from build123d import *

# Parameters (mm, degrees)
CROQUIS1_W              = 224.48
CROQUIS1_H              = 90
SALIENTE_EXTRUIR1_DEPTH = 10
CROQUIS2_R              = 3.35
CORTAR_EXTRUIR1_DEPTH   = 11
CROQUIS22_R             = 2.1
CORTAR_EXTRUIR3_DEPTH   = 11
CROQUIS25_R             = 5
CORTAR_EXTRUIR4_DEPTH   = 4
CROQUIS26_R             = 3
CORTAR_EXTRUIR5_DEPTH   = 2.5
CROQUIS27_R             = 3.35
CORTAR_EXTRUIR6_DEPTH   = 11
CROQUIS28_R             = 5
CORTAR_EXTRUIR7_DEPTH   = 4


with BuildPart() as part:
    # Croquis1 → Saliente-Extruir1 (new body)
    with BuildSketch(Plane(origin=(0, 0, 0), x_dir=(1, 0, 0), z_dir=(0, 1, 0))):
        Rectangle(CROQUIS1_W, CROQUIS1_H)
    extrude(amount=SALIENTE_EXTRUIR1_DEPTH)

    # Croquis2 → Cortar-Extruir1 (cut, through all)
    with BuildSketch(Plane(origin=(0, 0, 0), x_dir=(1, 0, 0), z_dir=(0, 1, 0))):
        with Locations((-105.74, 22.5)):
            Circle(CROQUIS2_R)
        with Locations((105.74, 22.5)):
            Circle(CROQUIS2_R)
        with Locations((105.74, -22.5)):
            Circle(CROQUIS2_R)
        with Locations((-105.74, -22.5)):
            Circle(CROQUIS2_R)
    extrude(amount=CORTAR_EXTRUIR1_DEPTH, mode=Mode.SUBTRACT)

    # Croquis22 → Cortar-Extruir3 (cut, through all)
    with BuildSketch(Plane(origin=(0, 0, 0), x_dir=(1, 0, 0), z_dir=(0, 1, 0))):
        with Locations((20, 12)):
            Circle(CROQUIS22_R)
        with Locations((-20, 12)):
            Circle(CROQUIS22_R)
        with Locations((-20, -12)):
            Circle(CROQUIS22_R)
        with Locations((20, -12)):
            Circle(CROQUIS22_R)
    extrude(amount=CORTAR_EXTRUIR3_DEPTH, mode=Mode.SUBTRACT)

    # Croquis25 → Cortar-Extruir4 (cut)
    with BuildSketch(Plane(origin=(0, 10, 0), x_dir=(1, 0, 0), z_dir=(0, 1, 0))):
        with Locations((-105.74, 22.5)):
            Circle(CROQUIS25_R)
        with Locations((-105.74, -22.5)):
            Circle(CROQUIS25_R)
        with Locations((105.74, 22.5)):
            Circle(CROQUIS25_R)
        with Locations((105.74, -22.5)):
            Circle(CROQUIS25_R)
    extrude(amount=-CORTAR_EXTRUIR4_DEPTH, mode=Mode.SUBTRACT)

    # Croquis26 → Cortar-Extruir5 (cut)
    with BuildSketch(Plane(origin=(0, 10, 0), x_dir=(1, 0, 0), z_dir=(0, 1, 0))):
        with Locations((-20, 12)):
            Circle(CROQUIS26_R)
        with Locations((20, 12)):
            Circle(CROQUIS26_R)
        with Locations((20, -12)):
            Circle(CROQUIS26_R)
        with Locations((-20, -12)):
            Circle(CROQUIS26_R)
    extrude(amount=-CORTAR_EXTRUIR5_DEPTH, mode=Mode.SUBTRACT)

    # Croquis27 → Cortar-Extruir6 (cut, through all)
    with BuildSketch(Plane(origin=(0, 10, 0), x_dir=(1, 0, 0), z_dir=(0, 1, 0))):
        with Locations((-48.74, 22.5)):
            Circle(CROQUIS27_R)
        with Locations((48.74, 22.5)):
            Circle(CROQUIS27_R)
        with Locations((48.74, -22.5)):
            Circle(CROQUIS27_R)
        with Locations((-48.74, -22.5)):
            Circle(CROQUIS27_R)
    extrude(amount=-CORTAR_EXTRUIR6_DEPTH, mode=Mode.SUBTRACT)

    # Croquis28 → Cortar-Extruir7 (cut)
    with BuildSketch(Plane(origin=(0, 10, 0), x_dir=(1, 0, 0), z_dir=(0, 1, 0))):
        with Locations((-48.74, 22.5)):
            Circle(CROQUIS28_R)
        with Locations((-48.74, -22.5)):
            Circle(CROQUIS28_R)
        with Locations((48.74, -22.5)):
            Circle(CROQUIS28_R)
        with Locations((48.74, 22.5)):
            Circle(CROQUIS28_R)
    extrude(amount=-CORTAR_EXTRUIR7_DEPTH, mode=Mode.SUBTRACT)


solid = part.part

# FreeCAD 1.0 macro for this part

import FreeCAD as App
import Part
import Sketcher

V = App.Vector

doc = App.newDocument("Part")
params = doc.addObject("Spreadsheet::Sheet", "Params")
for row, (alias, value) in enumerate([
    ("sketch1_height", "90 mm"),
    ("sketch1_width", "224.48 mm"),
    ("pad1_length", "10 mm"),
    ("sketch2_diameter", "6.7 mm"),
    ("sketch3_diameter", "4.2 mm"),
    ("sketch4_diameter", "10 mm"),
    ("pocket3_length", "4 mm"),
    ("sketch5_diameter", "6 mm"),
    ("pocket4_length", "2.5 mm"),
    ("sketch6_diameter", "6.7 mm"),
    ("sketch7_diameter", "10 mm"),
    ("pocket6_length", "4 mm"),
], start=1):
    params.set(f"A{row}", alias)
    params.set(f"B{row}", "=" + value)
    params.setAlias(f"B{row}", alias)

body = doc.addObject("PartDesign::Body", "Body")

sketch1 = body.newObject("Sketcher::SketchObject", "Sketch")
sketch1.AttachmentSupport = (doc.getObject("XZ_Plane"), [""])
sketch1.MapMode = "FlatFace"
sketch1.addGeometry(Part.LineSegment(V(-112, -45, 0), V(-112, 45, 0)), False)
sketch1.addGeometry(Part.LineSegment(V(-112, 45, 0), V(112, 45, 0)), False)
sketch1.addGeometry(Part.LineSegment(V(112, 45, 0), V(112, -45, 0)), False)
sketch1.addGeometry(Part.LineSegment(V(112, -45, 0), V(-112, -45, 0)), False)
sketch1.addConstraint(Sketcher.Constraint("Coincident", 0, 2, 1, 1))
sketch1.addConstraint(Sketcher.Constraint("Coincident", 1, 2, 2, 1))
sketch1.addConstraint(Sketcher.Constraint("Coincident", 2, 2, 3, 1))
sketch1.addConstraint(Sketcher.Constraint("Coincident", 3, 2, 0, 1))
sketch1.addConstraint(Sketcher.Constraint("Vertical", 0))
sketch1.addConstraint(Sketcher.Constraint("Horizontal", 1))
sketch1.addConstraint(Sketcher.Constraint("Vertical", 2))
sketch1.addConstraint(Sketcher.Constraint("Horizontal", 3))
sketch1.addConstraint(Sketcher.Constraint("Symmetric", 0, 2, 2, 2, -1, 1))
sketch1.addConstraint(Sketcher.Constraint("DistanceY", 0, 1, 0, 2, 90.0))
sketch1.addConstraint(Sketcher.Constraint("DistanceX", 1, 1, 1, 2, 224.48))
sketch1.setExpression("Constraints[9]", "Params.sketch1_height")
sketch1.setExpression("Constraints[10]", "Params.sketch1_width")
pad1 = body.newObject("PartDesign::Pad", "Pad")
pad1.Profile = sketch1
pad1.setExpression("Length", "Params.pad1_length")
pad1.Reversed = True

sketch2 = body.newObject("Sketcher::SketchObject", "Sketch001")
sketch2.AttachmentSupport = (doc.getObject("XZ_Plane"), [""])
sketch2.MapMode = "FlatFace"
sketch2.addGeometry(Part.Circle(V(-105.7, -22.5, 0), V(0, 0, 1), 3.4), False)
sketch2.addGeometry(Part.Circle(V(105.7, -22.5, 0), V(0, 0, 1), 3.4), False)
sketch2.addGeometry(Part.Circle(V(105.7, 22.5, 0), V(0, 0, 1), 3.4), False)
sketch2.addGeometry(Part.Circle(V(-105.7, 22.5, 0), V(0, 0, 1), 3.4), False)
sketch2.addConstraint(Sketcher.Constraint("Equal", 0, 1))
sketch2.addConstraint(Sketcher.Constraint("Equal", 1, 2))
sketch2.addConstraint(Sketcher.Constraint("Equal", 2, 3))
sketch2.addConstraint(Sketcher.Constraint("Symmetric", 0, 3, 2, 3, -1, 1))
sketch2.addConstraint(Sketcher.Constraint("Symmetric", 1, 3, 3, 3, -1, 1))
sketch2.addConstraint(Sketcher.Constraint("Symmetric", 0, 3, 1, 3, -2))
sketch2.addConstraint(Sketcher.Constraint("Diameter", 0, 6.7))
sketch2.addConstraint(Sketcher.Constraint("DistanceY", 1, 3, 2, 3, 45.0))
sketch2.addConstraint(Sketcher.Constraint("DistanceX", 0, 3, -1, 1, 105.74))
sketch2.setExpression("Constraints[6]", "Params.sketch2_diameter")
pocket1 = body.newObject("PartDesign::Pocket", "Pocket")
pocket1.Profile = sketch2
pocket1.Type = "ThroughAll"

sketch3 = body.newObject("Sketcher::SketchObject", "Sketch002")
sketch3.AttachmentSupport = (doc.getObject("XZ_Plane"), [""])
sketch3.MapMode = "FlatFace"
sketch3.addGeometry(Part.Circle(V(20, -12, 0), V(0, 0, 1), 2.1), False)
sketch3.addGeometry(Part.Circle(V(-20, -12, 0), V(0, 0, 1), 2.1), False)
sketch3.addGeometry(Part.Circle(V(-20, 12, 0), V(0, 0, 1), 2.1), False)
sketch3.addGeometry(Part.Circle(V(20, 12, 0), V(0, 0, 1), 2.1), False)
sketch3.addConstraint(Sketcher.Constraint("Equal", 0, 1))
sketch3.addConstraint(Sketcher.Constraint("Equal", 1, 2))
sketch3.addConstraint(Sketcher.Constraint("Equal", 2, 3))
sketch3.addConstraint(Sketcher.Constraint("Symmetric", 0, 3, 2, 3, -1, 1))
sketch3.addConstraint(Sketcher.Constraint("Symmetric", 1, 3, 3, 3, -1, 1))
sketch3.addConstraint(Sketcher.Constraint("Symmetric", 0, 3, 1, 3, -2))
sketch3.addConstraint(Sketcher.Constraint("Diameter", 0, 4.2))
sketch3.addConstraint(Sketcher.Constraint("DistanceX", -1, 1, 0, 3, 20.0))
sketch3.addConstraint(Sketcher.Constraint("DistanceY", 0, 3, -1, 1, 12.0))
sketch3.setExpression("Constraints[6]", "Params.sketch3_diameter")
pocket2 = body.newObject("PartDesign::Pocket", "Pocket001")
pocket2.Profile = sketch3
pocket2.Type = "ThroughAll"

sketch4 = body.newObject("Sketcher::SketchObject", "Sketch003")
sketch4.AttachmentSupport = (doc.getObject("XZ_Plane"), [""])
sketch4.MapMode = "FlatFace"
sketch4.AttachmentOffset = App.Placement(V(0, 0, -10), App.Rotation())
sketch4.addGeometry(Part.Circle(V(-106, -22, 0), V(0, 0, 1), 5), False)
sketch4.addGeometry(Part.Circle(V(-106, 22, 0), V(0, 0, 1), 5), False)
sketch4.addGeometry(Part.Circle(V(106, -22, 0), V(0, 0, 1), 5), False)
sketch4.addGeometry(Part.Circle(V(106, 22, 0), V(0, 0, 1), 5), False)
sketch4.addConstraint(Sketcher.Constraint("Equal", 0, 1))
sketch4.addConstraint(Sketcher.Constraint("Equal", 1, 2))
sketch4.addConstraint(Sketcher.Constraint("Equal", 2, 3))
sketch4.addConstraint(Sketcher.Constraint("Symmetric", 1, 3, 2, 3, -1, 1))
sketch4.addConstraint(Sketcher.Constraint("Symmetric", 0, 3, 3, 3, -1, 1))
sketch4.addConstraint(Sketcher.Constraint("Symmetric", 0, 3, 2, 3, -2))
sketch4.addConstraint(Sketcher.Constraint("Diameter", 0, 10.0))
sketch4.addConstraint(Sketcher.Constraint("DistanceY", 0, 3, 1, 3, 45.0))
sketch4.addConstraint(Sketcher.Constraint("DistanceX", 0, 3, -1, 1, 105.74))
sketch4.setExpression("Constraints[6]", "Params.sketch4_diameter")
pocket3 = body.newObject("PartDesign::Pocket", "Pocket002")
pocket3.Profile = sketch4
pocket3.setExpression("Length", "Params.pocket3_length")
pocket3.Reversed = True

sketch5 = body.newObject("Sketcher::SketchObject", "Sketch004")
sketch5.AttachmentSupport = (doc.getObject("XZ_Plane"), [""])
sketch5.MapMode = "FlatFace"
sketch5.AttachmentOffset = App.Placement(V(0, 0, -10), App.Rotation())
sketch5.addGeometry(Part.Circle(V(-20, -12, 0), V(0, 0, 1), 3), False)
sketch5.addGeometry(Part.Circle(V(20, -12, 0), V(0, 0, 1), 3), False)
sketch5.addGeometry(Part.Circle(V(20, 12, 0), V(0, 0, 1), 3), False)
sketch5.addGeometry(Part.Circle(V(-20, 12, 0), V(0, 0, 1), 3), False)
sketch5.addConstraint(Sketcher.Constraint("Equal", 0, 1))
sketch5.addConstraint(Sketcher.Constraint("Equal", 1, 2))
sketch5.addConstraint(Sketcher.Constraint("Equal", 2, 3))
sketch5.addConstraint(Sketcher.Constraint("Symmetric", 0, 3, 2, 3, -1, 1))
sketch5.addConstraint(Sketcher.Constraint("Symmetric", 1, 3, 3, 3, -1, 1))
sketch5.addConstraint(Sketcher.Constraint("Symmetric", 0, 3, 1, 3, -2))
sketch5.addConstraint(Sketcher.Constraint("Diameter", 0, 6.0))
sketch5.addConstraint(Sketcher.Constraint("DistanceX", 0, 3, -1, 1, 20.0))
sketch5.addConstraint(Sketcher.Constraint("DistanceY", 0, 3, -1, 1, 12.0))
sketch5.setExpression("Constraints[6]", "Params.sketch5_diameter")
pocket4 = body.newObject("PartDesign::Pocket", "Pocket003")
pocket4.Profile = sketch5
pocket4.setExpression("Length", "Params.pocket4_length")
pocket4.Reversed = True

sketch6 = body.newObject("Sketcher::SketchObject", "Sketch005")
sketch6.AttachmentSupport = (doc.getObject("XZ_Plane"), [""])
sketch6.MapMode = "FlatFace"
sketch6.AttachmentOffset = App.Placement(V(0, 0, -10), App.Rotation())
sketch6.addGeometry(Part.Circle(V(-48.7, -22.5, 0), V(0, 0, 1), 3.4), False)
sketch6.addGeometry(Part.Circle(V(48.7, -22.5, 0), V(0, 0, 1), 3.4), False)
sketch6.addGeometry(Part.Circle(V(48.7, 22.5, 0), V(0, 0, 1), 3.4), False)
sketch6.addGeometry(Part.Circle(V(-48.7, 22.5, 0), V(0, 0, 1), 3.4), False)
sketch6.addConstraint(Sketcher.Constraint("Equal", 0, 1))
sketch6.addConstraint(Sketcher.Constraint("Equal", 1, 2))
sketch6.addConstraint(Sketcher.Constraint("Equal", 2, 3))
sketch6.addConstraint(Sketcher.Constraint("Symmetric", 0, 3, 2, 3, -1, 1))
sketch6.addConstraint(Sketcher.Constraint("Symmetric", 1, 3, 3, 3, -1, 1))
sketch6.addConstraint(Sketcher.Constraint("Symmetric", 0, 3, 1, 3, -2))
sketch6.addConstraint(Sketcher.Constraint("Diameter", 0, 6.7))
sketch6.addConstraint(Sketcher.Constraint("DistanceY", 1, 3, 2, 3, 45.0))
sketch6.addConstraint(Sketcher.Constraint("DistanceX", 0, 3, -1, 1, 48.74))
sketch6.setExpression("Constraints[6]", "Params.sketch6_diameter")
pocket5 = body.newObject("PartDesign::Pocket", "Pocket004")
pocket5.Profile = sketch6
pocket5.Type = "ThroughAll"
pocket5.Reversed = True

sketch7 = body.newObject("Sketcher::SketchObject", "Sketch006")
sketch7.AttachmentSupport = (doc.getObject("XZ_Plane"), [""])
sketch7.MapMode = "FlatFace"
sketch7.AttachmentOffset = App.Placement(V(0, 0, -10), App.Rotation())
sketch7.addGeometry(Part.Circle(V(-49, -22, 0), V(0, 0, 1), 5), False)
sketch7.addGeometry(Part.Circle(V(-49, 22, 0), V(0, 0, 1), 5), False)
sketch7.addGeometry(Part.Circle(V(49, 22, 0), V(0, 0, 1), 5), False)
sketch7.addGeometry(Part.Circle(V(49, -22, 0), V(0, 0, 1), 5), False)
sketch7.addConstraint(Sketcher.Constraint("Equal", 0, 1))
sketch7.addConstraint(Sketcher.Constraint("Equal", 1, 2))
sketch7.addConstraint(Sketcher.Constraint("Equal", 2, 3))
sketch7.addConstraint(Sketcher.Constraint("Symmetric", 0, 3, 2, 3, -1, 1))
sketch7.addConstraint(Sketcher.Constraint("Symmetric", 1, 3, 3, 3, -1, 1))
sketch7.addConstraint(Sketcher.Constraint("Symmetric", 1, 3, 2, 3, -2))
sketch7.addConstraint(Sketcher.Constraint("Diameter", 0, 10.0))
sketch7.addConstraint(Sketcher.Constraint("DistanceY", 0, 3, 1, 3, 45.0))
sketch7.addConstraint(Sketcher.Constraint("DistanceX", 0, 3, -1, 1, 48.74))
sketch7.setExpression("Constraints[6]", "Params.sketch7_diameter")
pocket6 = body.newObject("PartDesign::Pocket", "Pocket005")
pocket6.Profile = sketch7
pocket6.setExpression("Length", "Params.pocket6_length")
pocket6.Reversed = True

doc.recompute()
